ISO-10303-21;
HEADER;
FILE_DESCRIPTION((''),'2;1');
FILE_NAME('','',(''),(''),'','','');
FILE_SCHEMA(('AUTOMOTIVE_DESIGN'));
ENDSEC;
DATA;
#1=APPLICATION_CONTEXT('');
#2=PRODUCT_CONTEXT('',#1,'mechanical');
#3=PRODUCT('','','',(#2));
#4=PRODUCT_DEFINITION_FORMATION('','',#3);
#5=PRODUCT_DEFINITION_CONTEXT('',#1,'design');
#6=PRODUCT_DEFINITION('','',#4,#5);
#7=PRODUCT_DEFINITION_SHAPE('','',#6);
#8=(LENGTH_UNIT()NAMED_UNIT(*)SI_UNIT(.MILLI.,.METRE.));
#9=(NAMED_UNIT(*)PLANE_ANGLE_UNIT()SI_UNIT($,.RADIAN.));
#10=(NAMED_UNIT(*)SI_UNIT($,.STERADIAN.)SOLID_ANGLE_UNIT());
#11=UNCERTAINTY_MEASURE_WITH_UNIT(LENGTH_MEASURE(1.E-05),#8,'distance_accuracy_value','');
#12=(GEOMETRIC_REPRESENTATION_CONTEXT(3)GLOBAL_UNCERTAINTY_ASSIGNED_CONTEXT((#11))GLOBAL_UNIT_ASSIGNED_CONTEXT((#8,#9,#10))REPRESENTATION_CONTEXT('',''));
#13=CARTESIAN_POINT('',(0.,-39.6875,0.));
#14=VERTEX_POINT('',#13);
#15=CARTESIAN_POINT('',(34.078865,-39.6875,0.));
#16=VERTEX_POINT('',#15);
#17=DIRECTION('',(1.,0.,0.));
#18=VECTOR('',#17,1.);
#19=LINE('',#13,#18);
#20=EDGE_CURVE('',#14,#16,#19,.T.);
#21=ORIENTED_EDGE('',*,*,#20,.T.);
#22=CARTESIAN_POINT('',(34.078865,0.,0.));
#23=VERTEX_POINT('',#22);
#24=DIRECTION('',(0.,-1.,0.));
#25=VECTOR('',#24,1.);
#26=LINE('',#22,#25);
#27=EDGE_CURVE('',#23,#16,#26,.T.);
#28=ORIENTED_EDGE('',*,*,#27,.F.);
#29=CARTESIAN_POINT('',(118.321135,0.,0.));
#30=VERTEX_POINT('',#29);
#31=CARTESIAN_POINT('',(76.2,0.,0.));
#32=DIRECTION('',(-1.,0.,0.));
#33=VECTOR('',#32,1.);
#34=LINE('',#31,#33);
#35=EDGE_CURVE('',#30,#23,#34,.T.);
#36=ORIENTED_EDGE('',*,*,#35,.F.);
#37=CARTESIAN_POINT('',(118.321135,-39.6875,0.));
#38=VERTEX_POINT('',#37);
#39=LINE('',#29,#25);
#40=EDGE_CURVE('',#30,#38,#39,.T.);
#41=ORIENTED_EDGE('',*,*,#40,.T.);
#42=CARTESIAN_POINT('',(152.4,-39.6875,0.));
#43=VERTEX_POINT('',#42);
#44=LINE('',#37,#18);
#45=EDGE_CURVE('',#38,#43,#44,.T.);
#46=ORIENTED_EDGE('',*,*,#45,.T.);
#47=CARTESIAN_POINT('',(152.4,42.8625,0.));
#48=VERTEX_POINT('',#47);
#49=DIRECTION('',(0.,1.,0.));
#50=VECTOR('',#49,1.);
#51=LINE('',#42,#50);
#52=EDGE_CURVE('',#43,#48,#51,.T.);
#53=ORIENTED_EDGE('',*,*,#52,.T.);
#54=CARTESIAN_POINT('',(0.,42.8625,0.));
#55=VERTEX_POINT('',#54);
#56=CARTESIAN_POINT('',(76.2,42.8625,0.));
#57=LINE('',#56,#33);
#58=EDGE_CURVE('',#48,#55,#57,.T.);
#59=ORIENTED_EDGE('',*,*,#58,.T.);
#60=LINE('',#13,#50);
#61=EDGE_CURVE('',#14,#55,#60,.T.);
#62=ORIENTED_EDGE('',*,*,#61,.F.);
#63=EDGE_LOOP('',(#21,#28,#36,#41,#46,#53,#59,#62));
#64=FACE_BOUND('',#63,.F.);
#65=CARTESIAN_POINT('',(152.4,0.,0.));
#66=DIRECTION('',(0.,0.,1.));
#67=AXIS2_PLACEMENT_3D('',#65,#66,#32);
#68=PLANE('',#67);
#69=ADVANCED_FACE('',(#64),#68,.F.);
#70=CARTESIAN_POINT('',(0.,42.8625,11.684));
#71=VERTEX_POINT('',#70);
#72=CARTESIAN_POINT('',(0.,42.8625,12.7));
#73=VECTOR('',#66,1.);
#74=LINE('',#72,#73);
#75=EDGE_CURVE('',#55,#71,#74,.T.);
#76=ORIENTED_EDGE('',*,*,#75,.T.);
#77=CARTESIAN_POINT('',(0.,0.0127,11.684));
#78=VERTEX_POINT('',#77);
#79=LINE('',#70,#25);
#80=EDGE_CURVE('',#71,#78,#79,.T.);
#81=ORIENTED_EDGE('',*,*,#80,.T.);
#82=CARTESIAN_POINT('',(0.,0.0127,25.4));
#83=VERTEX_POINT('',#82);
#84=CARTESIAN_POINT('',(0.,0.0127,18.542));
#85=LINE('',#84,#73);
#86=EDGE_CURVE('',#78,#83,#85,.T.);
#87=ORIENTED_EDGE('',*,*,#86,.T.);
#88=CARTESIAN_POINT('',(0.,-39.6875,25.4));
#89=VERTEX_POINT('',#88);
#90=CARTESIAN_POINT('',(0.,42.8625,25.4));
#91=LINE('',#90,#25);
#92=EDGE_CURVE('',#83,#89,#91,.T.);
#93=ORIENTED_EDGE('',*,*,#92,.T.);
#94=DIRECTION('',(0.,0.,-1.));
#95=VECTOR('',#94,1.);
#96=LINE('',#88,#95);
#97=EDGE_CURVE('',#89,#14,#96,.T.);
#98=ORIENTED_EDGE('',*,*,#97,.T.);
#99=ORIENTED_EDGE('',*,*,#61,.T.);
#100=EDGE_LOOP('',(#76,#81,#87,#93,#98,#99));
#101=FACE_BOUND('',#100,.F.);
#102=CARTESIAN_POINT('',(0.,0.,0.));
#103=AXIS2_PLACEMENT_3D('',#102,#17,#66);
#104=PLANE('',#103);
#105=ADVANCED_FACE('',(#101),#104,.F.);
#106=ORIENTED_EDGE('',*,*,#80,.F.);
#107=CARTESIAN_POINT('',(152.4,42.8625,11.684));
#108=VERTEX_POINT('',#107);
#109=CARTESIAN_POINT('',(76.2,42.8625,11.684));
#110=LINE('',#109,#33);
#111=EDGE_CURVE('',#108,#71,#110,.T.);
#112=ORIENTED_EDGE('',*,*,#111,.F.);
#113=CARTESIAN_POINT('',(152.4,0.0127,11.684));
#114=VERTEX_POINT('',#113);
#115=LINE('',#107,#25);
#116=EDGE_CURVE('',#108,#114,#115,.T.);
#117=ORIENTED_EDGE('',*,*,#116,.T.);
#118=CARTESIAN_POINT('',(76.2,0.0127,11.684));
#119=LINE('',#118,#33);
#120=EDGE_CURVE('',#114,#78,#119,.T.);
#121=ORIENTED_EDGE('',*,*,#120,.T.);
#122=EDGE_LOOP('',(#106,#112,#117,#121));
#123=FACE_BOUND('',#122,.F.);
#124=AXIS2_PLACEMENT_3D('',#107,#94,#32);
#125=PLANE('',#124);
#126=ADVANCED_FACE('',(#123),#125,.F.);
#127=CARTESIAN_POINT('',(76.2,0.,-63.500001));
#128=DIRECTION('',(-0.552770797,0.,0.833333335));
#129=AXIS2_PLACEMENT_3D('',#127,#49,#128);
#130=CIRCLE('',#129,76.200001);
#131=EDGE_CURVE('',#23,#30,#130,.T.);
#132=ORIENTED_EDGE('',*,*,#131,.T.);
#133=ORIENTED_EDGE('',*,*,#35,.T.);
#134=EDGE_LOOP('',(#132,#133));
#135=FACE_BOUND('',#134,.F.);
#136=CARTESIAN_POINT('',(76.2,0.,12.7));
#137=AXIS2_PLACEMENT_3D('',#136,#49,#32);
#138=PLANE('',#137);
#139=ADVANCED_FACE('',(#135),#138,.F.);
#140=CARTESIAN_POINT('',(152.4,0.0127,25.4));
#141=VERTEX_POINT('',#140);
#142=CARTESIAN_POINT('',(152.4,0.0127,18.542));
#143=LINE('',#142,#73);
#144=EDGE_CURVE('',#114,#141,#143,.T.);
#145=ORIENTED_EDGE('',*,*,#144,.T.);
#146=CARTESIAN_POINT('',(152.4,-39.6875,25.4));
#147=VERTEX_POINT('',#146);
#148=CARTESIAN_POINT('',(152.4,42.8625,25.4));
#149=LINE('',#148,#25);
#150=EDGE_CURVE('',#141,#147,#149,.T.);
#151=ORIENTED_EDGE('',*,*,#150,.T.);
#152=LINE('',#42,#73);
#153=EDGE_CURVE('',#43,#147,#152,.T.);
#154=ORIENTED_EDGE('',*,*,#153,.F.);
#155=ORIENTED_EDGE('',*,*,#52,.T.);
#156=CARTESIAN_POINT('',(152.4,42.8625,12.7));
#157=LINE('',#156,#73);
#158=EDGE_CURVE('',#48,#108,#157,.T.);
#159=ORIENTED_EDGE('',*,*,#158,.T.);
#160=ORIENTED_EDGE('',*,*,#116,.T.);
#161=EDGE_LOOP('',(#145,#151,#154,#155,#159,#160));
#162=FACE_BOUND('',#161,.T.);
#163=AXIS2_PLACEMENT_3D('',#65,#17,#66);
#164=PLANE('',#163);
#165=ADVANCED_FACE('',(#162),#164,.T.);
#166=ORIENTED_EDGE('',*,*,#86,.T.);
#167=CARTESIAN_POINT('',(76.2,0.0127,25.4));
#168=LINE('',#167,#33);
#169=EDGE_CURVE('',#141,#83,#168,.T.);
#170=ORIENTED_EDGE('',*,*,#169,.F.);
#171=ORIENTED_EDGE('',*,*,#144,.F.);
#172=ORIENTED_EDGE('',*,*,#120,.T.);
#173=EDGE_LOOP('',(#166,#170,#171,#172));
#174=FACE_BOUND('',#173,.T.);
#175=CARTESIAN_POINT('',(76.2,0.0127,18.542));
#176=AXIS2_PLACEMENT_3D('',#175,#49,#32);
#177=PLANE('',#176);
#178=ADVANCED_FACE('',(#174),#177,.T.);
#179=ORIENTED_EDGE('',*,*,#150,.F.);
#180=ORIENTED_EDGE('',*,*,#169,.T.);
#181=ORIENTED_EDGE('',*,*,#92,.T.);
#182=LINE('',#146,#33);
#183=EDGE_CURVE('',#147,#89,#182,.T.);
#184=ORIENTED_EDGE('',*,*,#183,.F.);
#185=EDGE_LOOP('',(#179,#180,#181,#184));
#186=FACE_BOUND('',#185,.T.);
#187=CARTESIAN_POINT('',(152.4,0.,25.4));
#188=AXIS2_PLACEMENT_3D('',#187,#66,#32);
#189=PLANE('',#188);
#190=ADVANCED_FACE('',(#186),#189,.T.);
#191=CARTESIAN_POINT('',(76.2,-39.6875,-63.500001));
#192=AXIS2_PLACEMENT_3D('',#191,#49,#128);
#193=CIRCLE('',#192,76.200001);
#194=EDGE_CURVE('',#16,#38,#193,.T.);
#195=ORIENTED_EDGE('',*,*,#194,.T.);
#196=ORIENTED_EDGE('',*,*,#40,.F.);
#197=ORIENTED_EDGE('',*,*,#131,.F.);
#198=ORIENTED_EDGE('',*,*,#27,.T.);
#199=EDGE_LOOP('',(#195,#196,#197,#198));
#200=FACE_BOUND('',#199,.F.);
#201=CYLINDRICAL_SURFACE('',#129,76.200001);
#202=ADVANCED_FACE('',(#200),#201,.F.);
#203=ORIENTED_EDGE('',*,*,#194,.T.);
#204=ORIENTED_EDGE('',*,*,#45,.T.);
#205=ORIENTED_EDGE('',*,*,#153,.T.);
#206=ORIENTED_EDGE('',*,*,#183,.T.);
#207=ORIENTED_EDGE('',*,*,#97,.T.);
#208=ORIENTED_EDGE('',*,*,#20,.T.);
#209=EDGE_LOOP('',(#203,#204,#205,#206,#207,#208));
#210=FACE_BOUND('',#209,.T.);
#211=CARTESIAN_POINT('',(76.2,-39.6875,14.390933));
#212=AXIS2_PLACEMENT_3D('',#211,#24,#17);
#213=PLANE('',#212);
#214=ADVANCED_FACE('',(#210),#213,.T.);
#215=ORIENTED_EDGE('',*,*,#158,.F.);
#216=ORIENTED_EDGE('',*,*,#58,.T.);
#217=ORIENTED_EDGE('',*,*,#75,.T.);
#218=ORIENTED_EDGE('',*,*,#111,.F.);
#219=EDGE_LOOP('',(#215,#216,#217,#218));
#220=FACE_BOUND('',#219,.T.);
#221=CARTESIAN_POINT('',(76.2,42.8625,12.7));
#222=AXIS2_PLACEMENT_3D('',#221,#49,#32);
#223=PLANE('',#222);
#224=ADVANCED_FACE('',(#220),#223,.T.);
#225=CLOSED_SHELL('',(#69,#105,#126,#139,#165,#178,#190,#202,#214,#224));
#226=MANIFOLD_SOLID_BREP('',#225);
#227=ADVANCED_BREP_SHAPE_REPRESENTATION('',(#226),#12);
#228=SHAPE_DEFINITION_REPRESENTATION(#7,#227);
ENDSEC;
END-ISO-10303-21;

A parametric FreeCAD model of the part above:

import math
import FreeCAD as App
import Part
import Sketcher
from FreeCAD import Vector
Q = App.Units.Quantity


def add_polygon(sketch, points):
    """Adds a closed chain of lines whose ends are joined by coincident constraints."""
    first, n = sketch.GeometryCount, len(points)
    for a, b in zip(points, points[1:] + points[:1]):
        sketch.addGeometry(Part.LineSegment(App.Vector(*a, 0), App.Vector(*b, 0)), False)
    for i in range(n):
        sketch.addConstraint(Sketcher.Constraint("Coincident", first + i, 2, first + (i + 1) % n, 1))

doc = App.newDocument("Part")
body = doc.addObject("PartDesign::Body", "Body")

sketch1 = body.newObject("Sketcher::SketchObject", "Sketch")
sketch1.AttachmentSupport = (doc.getObject("XZ_Plane"), [""])
sketch1.MapMode = "FlatFace"
sketch1.addGeometry([
    Part.LineSegment(Vector(0, 25, 0), Vector(0, 0, 0)),
    Part.LineSegment(Vector(0, 0, 0), Vector(34, 0, 0)),
    Part.ArcOfCircle(Part.Circle(Vector(76, -64, 0), Vector(0, 0, 1), 76), math.radians(56), math.radians(124)),
    Part.LineSegment(Vector(118, 0, 0), Vector(152, 0, 0)),
    Part.LineSegment(Vector(152, 0, 0), Vector(152, 25, 0)),
    Part.LineSegment(Vector(152, 25, 0), Vector(0, 25, 0)),
], False)
sketch1.addConstraint([
    Sketcher.Constraint("Coincident", 0, 2, 1, 1),
    Sketcher.Constraint("Coincident", 1, 2, 2, 2),
    Sketcher.Constraint("Coincident", 2, 1, 3, 1),
    Sketcher.Constraint("Coincident", 3, 2, 4, 1),
    Sketcher.Constraint("Coincident", 4, 2, 5, 1),
    Sketcher.Constraint("Coincident", 5, 2, 0, 1),
    Sketcher.Constraint("Vertical", 0),
    Sketcher.Constraint("Horizontal", 1),
    Sketcher.Constraint("Horizontal", 3),
    Sketcher.Constraint("Vertical", 4),
    Sketcher.Constraint("Horizontal", 5),
    Sketcher.Constraint("Coincident", 0, 2, -1, 1),
    Sketcher.Constraint("PointOnObject", 2, 1, -1),
    Sketcher.Constraint("Equal", 1, 3),
    Sketcher.Constraint("Radius", 2, Q("3 in")),
    Sketcher.Constraint("DistanceX", 5, 2, 5, 1, Q("6 in")),
    Sketcher.Constraint("DistanceY", 0, 2, 0, 1, Q("1 in")),
    Sketcher.Constraint("DistanceY", 2, 3, -1, 1, Q("2.5 in")),
])
pad1 = body.newObject("PartDesign::Pad", "Pad")
pad1.Profile = sketch1
pad1.Length = Q("1.5625 in")

sketch2 = body.newObject("Sketcher::SketchObject", "Sketch001")
sketch2.AttachmentSupport = (doc.getObject("XZ_Plane"), [""])
sketch2.MapMode = "FlatFace"
add_polygon(sketch2, [(152, 25), (152, 0), (0, 0), (0, 25)])
sketch2.addConstraint([
    Sketcher.Constraint("Vertical", 0),
    Sketcher.Constraint("Horizontal", 1),
    Sketcher.Constraint("Vertical", 2),
    Sketcher.Constraint("Horizontal", 3),
    Sketcher.Constraint("Coincident", 1, 2, -1, 1),
    Sketcher.Constraint("DistanceX", 1, 2, 1, 1, Q("6 in")),
    Sketcher.Constraint("DistanceY", 0, 2, 0, 1, Q("1 in")),
])
pad2 = body.newObject("PartDesign::Pad", "Pad001")
pad2.Profile = sketch2
pad2.Length = Q("1.6875 in")
pad2.Reversed = True

sketch3 = body.newObject("Sketcher::SketchObject", "Sketch002")
sketch3.AttachmentSupport = (doc.getObject("XZ_Plane"), [""])
sketch3.MapMode = "FlatFace"
sketch3.AttachmentOffset = App.Placement(Vector(0, 0, -1.6875 * 25.4), App.Rotation())
add_polygon(sketch3, [(152, 25), (152, 12), (0, 12), (0, 25)])
sketch3.addConstraint([
    Sketcher.Constraint("Vertical", 0),
    Sketcher.Constraint("Horizontal", 1),
    Sketcher.Constraint("Vertical", 2),
    Sketcher.Constraint("Horizontal", 3),
    Sketcher.Constraint("PointOnObject", 1, 2, -2),
    Sketcher.Constraint("DistanceX", 1, 2, 1, 1, Q("6 in")),
    Sketcher.Constraint("DistanceY", -1, 1, 2, 2, Q("1 in")),
    Sketcher.Constraint("DistanceY", 0, 2, 0, 1, Q("0.54 in")),
])
pocket1 = body.newObject("PartDesign::Pocket", "Pocket")
pocket1.Profile = sketch3
pocket1.Length = Q("1.687 in")
pocket1.Reversed = True

doc.recompute()
